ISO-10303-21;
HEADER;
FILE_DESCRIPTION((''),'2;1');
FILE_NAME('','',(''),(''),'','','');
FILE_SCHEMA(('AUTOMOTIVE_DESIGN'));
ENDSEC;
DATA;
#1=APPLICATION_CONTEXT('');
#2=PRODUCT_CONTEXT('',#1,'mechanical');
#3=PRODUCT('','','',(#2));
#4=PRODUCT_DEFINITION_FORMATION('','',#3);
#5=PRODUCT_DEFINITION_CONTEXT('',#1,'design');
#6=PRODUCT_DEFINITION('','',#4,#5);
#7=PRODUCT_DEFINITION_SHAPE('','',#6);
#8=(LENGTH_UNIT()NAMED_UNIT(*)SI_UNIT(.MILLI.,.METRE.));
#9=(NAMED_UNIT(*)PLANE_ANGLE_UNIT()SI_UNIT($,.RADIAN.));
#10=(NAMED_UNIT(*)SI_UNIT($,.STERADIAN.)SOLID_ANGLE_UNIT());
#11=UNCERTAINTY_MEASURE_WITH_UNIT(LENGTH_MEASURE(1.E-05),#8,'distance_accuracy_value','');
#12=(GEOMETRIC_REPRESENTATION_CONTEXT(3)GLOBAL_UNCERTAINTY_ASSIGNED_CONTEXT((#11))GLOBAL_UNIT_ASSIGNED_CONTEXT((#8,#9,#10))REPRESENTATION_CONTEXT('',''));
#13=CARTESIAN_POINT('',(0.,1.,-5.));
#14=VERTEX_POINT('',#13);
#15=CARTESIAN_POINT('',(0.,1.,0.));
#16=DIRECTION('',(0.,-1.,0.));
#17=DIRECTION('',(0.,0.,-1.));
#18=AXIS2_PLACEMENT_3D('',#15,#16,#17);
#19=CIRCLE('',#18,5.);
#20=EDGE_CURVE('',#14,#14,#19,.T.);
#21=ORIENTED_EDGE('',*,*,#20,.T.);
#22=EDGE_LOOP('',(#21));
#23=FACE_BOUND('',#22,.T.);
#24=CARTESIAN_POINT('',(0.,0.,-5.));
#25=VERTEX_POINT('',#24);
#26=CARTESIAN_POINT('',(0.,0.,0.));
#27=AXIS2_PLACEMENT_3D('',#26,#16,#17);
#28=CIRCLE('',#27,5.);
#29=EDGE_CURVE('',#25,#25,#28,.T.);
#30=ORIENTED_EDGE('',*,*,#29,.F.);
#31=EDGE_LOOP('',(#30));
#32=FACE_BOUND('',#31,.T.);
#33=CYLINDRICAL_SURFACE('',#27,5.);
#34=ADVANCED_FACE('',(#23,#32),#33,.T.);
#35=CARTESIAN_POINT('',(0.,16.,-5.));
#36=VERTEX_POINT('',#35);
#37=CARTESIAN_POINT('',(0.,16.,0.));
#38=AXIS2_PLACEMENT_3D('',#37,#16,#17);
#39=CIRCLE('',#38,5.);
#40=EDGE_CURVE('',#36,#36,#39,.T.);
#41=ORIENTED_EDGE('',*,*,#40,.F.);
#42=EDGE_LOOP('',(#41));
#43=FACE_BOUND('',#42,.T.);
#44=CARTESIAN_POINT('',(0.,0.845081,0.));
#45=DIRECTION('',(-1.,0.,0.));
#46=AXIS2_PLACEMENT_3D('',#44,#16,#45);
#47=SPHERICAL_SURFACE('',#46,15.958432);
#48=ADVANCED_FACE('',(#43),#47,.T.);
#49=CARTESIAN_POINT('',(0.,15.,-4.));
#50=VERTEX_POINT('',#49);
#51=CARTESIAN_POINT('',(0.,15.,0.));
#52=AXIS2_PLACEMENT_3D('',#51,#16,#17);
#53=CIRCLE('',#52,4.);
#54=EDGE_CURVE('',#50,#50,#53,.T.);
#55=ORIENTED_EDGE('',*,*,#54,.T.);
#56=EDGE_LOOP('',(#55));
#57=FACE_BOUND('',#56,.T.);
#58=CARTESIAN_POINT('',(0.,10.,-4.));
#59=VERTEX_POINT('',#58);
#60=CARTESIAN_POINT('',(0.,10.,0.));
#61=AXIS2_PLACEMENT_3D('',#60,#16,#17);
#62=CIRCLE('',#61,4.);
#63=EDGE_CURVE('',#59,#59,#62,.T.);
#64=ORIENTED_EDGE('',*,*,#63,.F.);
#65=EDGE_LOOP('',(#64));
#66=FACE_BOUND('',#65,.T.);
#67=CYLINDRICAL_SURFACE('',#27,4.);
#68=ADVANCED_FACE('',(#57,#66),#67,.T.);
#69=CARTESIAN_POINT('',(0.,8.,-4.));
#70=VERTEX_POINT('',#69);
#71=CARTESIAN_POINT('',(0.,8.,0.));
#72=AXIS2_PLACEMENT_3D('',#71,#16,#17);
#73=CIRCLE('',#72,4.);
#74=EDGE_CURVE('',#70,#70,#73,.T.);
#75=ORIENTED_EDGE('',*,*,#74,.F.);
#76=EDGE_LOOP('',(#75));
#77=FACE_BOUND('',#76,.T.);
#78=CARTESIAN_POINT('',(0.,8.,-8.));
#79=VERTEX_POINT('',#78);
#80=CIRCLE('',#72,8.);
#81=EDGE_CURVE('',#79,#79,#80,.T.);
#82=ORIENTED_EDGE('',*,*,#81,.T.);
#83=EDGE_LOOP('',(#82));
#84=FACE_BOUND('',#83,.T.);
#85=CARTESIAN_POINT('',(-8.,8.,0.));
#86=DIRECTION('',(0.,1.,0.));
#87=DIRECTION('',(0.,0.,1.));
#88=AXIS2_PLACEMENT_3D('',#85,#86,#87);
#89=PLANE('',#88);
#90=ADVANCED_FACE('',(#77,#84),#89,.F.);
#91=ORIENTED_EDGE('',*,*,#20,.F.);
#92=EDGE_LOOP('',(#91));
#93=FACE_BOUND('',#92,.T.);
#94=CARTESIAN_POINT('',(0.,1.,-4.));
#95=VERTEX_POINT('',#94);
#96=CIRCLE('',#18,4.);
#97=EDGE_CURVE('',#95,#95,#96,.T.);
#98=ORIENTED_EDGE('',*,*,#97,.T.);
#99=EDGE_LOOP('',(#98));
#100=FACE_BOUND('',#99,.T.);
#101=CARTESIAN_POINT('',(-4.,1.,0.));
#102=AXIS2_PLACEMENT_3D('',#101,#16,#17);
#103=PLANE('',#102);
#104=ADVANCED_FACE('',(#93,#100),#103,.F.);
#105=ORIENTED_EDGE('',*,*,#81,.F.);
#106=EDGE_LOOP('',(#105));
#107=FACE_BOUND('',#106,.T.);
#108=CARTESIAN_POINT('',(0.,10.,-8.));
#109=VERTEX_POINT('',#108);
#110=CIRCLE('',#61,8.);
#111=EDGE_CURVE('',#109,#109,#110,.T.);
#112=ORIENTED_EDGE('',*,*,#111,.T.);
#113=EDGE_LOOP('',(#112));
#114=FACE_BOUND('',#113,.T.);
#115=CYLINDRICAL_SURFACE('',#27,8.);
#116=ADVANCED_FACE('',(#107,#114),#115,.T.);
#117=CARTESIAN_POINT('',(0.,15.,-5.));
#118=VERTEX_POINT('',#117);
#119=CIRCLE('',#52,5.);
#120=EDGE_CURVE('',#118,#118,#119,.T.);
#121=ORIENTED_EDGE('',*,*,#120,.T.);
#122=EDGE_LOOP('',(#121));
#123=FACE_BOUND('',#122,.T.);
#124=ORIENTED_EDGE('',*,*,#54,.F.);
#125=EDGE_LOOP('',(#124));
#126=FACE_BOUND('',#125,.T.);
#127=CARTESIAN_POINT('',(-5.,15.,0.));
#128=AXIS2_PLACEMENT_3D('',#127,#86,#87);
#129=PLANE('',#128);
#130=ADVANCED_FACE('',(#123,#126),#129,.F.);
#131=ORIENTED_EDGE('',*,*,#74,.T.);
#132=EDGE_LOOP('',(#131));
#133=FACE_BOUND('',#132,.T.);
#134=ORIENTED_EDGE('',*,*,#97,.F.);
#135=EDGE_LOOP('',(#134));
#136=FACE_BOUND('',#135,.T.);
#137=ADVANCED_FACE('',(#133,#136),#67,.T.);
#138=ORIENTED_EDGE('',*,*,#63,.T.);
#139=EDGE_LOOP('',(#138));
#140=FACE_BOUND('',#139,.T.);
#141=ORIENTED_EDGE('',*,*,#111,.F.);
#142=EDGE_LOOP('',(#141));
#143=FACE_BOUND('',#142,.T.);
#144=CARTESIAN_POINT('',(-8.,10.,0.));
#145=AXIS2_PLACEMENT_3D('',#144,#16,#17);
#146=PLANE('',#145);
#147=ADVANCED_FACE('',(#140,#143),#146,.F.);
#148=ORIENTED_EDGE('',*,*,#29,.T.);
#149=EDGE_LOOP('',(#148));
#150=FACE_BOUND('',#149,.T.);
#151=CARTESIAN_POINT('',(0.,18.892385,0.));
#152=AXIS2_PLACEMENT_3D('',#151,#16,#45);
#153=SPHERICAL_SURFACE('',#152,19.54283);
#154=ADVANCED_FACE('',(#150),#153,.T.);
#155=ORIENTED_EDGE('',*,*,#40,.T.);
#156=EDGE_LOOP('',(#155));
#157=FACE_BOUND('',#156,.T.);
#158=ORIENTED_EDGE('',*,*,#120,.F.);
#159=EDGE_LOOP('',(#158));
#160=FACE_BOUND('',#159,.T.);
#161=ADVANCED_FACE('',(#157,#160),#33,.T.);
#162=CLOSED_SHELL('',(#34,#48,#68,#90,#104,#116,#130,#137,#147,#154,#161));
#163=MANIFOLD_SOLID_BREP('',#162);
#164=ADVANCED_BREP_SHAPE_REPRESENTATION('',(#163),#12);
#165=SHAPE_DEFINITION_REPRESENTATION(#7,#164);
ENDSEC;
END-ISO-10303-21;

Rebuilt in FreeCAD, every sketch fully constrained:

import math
import FreeCAD as App
import Part
import Sketcher
from FreeCAD import Vector

doc = App.newDocument("Part")
body = doc.addObject("PartDesign::Body", "Body")

# Sketch on XY plane
sketch1 = body.newObject("Sketcher::SketchObject", "Sketch")
sketch1.AttachmentSupport = (doc.getObject("XY_Plane"), [""])
sketch1.MapMode = "FlatFace"
sketch1.addGeometry(Part.ArcOfCircle(Part.Circle(Vector(0, 18.9, 0), Vector(0, 0, 1), 19.5), math.radians(-104.82), math.radians(-90)), False)
sketch1.addGeometry(Part.LineSegment(Vector(0, -0.7, 0), Vector(0, 16.8, 0)), False)
sketch1.addGeometry(Part.ArcOfCircle(Part.Circle(Vector(0, 0.8, 0), Vector(0, 0, 1), 16), math.radians(90), math.radians(108.26)), False)
sketch1.addGeometry(Part.LineSegment(Vector(-5, 16, 0), Vector(-5, 15, 0)), False)
sketch1.addGeometry(Part.LineSegment(Vector(-5, 15, 0), Vector(-4, 15, 0)), False)
sketch1.addGeometry(Part.LineSegment(Vector(-4, 15, 0), Vector(-4, 10, 0)), False)
sketch1.addGeometry(Part.LineSegment(Vector(-4, 10, 0), Vector(-8, 10, 0)), False)
sketch1.addGeometry(Part.LineSegment(Vector(-8, 10, 0), Vector(-8, 8, 0)), False)
sketch1.addGeometry(Part.LineSegment(Vector(-8, 8, 0), Vector(-4, 8, 0)), False)
sketch1.addGeometry(Part.LineSegment(Vector(-4, 8, 0), Vector(-4, 1, 0)), False)
sketch1.addGeometry(Part.LineSegment(Vector(-4, 1, 0), Vector(-5, 1, 0)), False)
sketch1.addGeometry(Part.LineSegment(Vector(-5, 1, 0), Vector(-5, 0, 0)), False)
sketch1.addConstraint(Sketcher.Constraint("Coincident", 0, 2, 1, 1))
sketch1.addConstraint(Sketcher.Constraint("Coincident", 1, 2, 2, 1))
sketch1.addConstraint(Sketcher.Constraint("Coincident", 2, 2, 3, 1))
sketch1.addConstraint(Sketcher.Constraint("Coincident", 3, 2, 4, 1))
sketch1.addConstraint(Sketcher.Constraint("Coincident", 4, 2, 5, 1))
sketch1.addConstraint(Sketcher.Constraint("Coincident", 5, 2, 6, 1))
sketch1.addConstraint(Sketcher.Constraint("Coincident", 6, 2, 7, 1))
sketch1.addConstraint(Sketcher.Constraint("Coincident", 7, 2, 8, 1))
sketch1.addConstraint(Sketcher.Constraint("Coincident", 8, 2, 9, 1))
sketch1.addConstraint(Sketcher.Constraint("Coincident", 9, 2, 10, 1))
sketch1.addConstraint(Sketcher.Constraint("Coincident", 10, 2, 11, 1))
sketch1.addConstraint(Sketcher.Constraint("Coincident", 11, 2, 0, 1))
sketch1.addConstraint(Sketcher.Constraint("Vertical", 1))
sketch1.addConstraint(Sketcher.Constraint("Vertical", 3))
sketch1.addConstraint(Sketcher.Constraint("Horizontal", 4))
sketch1.addConstraint(Sketcher.Constraint("Vertical", 5))
sketch1.addConstraint(Sketcher.Constraint("Horizontal", 6))
sketch1.addConstraint(Sketcher.Constraint("Vertical", 7))
sketch1.addConstraint(Sketcher.Constraint("Horizontal", 8))
sketch1.addConstraint(Sketcher.Constraint("Vertical", 9))
sketch1.addConstraint(Sketcher.Constraint("Horizontal", 10))
sketch1.addConstraint(Sketcher.Constraint("Vertical", 11))
sketch1.addConstraint(Sketcher.Constraint("PointOnObject", 0, 3, -2))
sketch1.addConstraint(Sketcher.Constraint("PointOnObject", 2, 3, -2))
sketch1.addConstraint(Sketcher.Constraint("PointOnObject", 0, 2, -2))
sketch1.addConstraint(Sketcher.Constraint("PointOnObject", 11, 2, -1))
sketch1.addConstraint(Sketcher.Constraint("Vertical", 5, 2, 8, 2))
sketch1.addConstraint(Sketcher.Constraint("Vertical", 3, 2, 10, 2))
sketch1.addConstraint(Sketcher.Constraint("Equal", 10, 3))
sketch1.addConstraint(Sketcher.Constraint("Equal", 3, 11))
sketch1.addConstraint(Sketcher.Constraint("DistanceX", 4, 1, 4, 2, 1.0))
sketch1.addConstraint(Sketcher.Constraint("DistanceX", 6, 2, 6, 1, 4.0))
sketch1.addConstraint(Sketcher.Constraint("DistanceY", 5, 2, 5, 1, 5.0))
sketch1.addConstraint(Sketcher.Constraint("DistanceY", 7, 2, 7, 1, 2.0))
sketch1.addConstraint(Sketcher.Constraint("DistanceY", 9, 2, 9, 1, 7.0))
sketch1.addConstraint(Sketcher.Constraint("DistanceX", 2, 2, -1, 1, 5.0))
sketch1.addConstraint(Sketcher.Constraint("Radius", 0, 19.54283))
sketch1.addConstraint(Sketcher.Constraint("Radius", 2, 15.958432))
revolution = body.newObject("PartDesign::Revolution", "Revolution")
revolution.Profile = sketch1
revolution.ReferenceAxis = (sketch1, ["V_Axis"])
revolution.Angle = 360

doc.recompute()
